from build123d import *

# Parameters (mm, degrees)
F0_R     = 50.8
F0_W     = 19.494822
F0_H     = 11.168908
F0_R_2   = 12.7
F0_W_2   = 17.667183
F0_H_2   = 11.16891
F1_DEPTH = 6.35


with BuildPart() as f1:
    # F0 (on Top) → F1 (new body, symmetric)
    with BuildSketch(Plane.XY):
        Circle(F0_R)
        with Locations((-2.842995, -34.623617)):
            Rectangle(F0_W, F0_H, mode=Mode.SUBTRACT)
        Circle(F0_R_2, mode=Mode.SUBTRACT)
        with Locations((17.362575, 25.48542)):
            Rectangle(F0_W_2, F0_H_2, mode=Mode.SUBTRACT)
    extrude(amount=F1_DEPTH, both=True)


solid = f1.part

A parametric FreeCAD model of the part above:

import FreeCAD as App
import Part
import Sketcher
from FreeCAD import Vector
Q = App.Units.Quantity


def add_polygon(sketch, points):
    """Adds a closed chain of lines whose ends are joined by coincident constraints."""
    first, n = sketch.GeometryCount, len(points)
    for a, b in zip(points, points[1:] + points[:1]):
        sketch.addGeometry(Part.LineSegment(App.Vector(*a, 0), App.Vector(*b, 0)), False)
    for i in range(n):
        sketch.addConstraint(Sketcher.Constraint("Coincident", first + i, 2, first + (i + 1) % n, 1))

doc = App.newDocument("Part")
body = doc.addObject("PartDesign::Body", "Body")

# Sketch on XY plane
sketch1 = body.newObject("Sketcher::SketchObject", "Sketch")
sketch1.AttachmentSupport = (doc.getObject("XY_Plane"), [""])
sketch1.MapMode = "FlatFace"
sketch1.addGeometry(Part.Circle(Vector(0, 0, 0), Vector(0, 0, 1), 50.8), False)  # 0
add_polygon(sketch1, [(6.904416, -40.208071), (-12.590406, -40.208071), (-12.590406, -29.039163), (6.904416, -29.039163)])  # lines 1-4
sketch1.addGeometry(Part.Circle(Vector(0, 0, 0), Vector(0, 0, 1), 12.7), False)  # 5
add_polygon(sketch1, [(26.196167, 19.900965), (8.528984, 19.900965), (8.528984, 31.069875), (26.196167, 31.069875)])  # lines 6-9
sketch1.addConstraint([
    Sketcher.Constraint("Horizontal", 1),
    Sketcher.Constraint("Vertical", 2),
    Sketcher.Constraint("Horizontal", 3),
    Sketcher.Constraint("Vertical", 4),
    Sketcher.Constraint("Horizontal", 6),
    Sketcher.Constraint("Vertical", 7),
    Sketcher.Constraint("Horizontal", 8),
    Sketcher.Constraint("Vertical", 9),
    Sketcher.Constraint("Coincident", 0, 3, -1, 1),
    Sketcher.Constraint("Coincident", 5, 3, -1, 1),
    Sketcher.Constraint("Diameter", 0, Q("4 in")),
    Sketcher.Constraint("Diameter", 5, Q("1 in")),
    Sketcher.Constraint("DistanceX", 1, 2, 1, 1, Q("19.494822 mm")),
    Sketcher.Constraint("DistanceY", 7, 1, 7, 2, Q("11.16891 mm")),
    Sketcher.Constraint("DistanceX", 6, 2, 6, 1, Q("17.667183 mm")),
    Sketcher.Constraint("DistanceY", 2, 1, 2, 2, Q("11.168908 mm")),
    Sketcher.Constraint("DistanceY", 1, 2, -1, 1, Q("40.208071 mm")),
    Sketcher.Constraint("DistanceX", 2, 2, 6, 2, Q("21.11939 mm")),
    Sketcher.Constraint("DistanceX", 1, 2, -1, 1, Q("12.590406 mm")),
    Sketcher.Constraint("DistanceY", -1, 1, 6, 2, Q("19.900965 mm")),
])
pad1 = body.newObject("PartDesign::Pad", "Pad")
pad1.Profile = sketch1
pad1.Length = Q("0.5 in")
pad1.Midplane = True

doc.recompute()
